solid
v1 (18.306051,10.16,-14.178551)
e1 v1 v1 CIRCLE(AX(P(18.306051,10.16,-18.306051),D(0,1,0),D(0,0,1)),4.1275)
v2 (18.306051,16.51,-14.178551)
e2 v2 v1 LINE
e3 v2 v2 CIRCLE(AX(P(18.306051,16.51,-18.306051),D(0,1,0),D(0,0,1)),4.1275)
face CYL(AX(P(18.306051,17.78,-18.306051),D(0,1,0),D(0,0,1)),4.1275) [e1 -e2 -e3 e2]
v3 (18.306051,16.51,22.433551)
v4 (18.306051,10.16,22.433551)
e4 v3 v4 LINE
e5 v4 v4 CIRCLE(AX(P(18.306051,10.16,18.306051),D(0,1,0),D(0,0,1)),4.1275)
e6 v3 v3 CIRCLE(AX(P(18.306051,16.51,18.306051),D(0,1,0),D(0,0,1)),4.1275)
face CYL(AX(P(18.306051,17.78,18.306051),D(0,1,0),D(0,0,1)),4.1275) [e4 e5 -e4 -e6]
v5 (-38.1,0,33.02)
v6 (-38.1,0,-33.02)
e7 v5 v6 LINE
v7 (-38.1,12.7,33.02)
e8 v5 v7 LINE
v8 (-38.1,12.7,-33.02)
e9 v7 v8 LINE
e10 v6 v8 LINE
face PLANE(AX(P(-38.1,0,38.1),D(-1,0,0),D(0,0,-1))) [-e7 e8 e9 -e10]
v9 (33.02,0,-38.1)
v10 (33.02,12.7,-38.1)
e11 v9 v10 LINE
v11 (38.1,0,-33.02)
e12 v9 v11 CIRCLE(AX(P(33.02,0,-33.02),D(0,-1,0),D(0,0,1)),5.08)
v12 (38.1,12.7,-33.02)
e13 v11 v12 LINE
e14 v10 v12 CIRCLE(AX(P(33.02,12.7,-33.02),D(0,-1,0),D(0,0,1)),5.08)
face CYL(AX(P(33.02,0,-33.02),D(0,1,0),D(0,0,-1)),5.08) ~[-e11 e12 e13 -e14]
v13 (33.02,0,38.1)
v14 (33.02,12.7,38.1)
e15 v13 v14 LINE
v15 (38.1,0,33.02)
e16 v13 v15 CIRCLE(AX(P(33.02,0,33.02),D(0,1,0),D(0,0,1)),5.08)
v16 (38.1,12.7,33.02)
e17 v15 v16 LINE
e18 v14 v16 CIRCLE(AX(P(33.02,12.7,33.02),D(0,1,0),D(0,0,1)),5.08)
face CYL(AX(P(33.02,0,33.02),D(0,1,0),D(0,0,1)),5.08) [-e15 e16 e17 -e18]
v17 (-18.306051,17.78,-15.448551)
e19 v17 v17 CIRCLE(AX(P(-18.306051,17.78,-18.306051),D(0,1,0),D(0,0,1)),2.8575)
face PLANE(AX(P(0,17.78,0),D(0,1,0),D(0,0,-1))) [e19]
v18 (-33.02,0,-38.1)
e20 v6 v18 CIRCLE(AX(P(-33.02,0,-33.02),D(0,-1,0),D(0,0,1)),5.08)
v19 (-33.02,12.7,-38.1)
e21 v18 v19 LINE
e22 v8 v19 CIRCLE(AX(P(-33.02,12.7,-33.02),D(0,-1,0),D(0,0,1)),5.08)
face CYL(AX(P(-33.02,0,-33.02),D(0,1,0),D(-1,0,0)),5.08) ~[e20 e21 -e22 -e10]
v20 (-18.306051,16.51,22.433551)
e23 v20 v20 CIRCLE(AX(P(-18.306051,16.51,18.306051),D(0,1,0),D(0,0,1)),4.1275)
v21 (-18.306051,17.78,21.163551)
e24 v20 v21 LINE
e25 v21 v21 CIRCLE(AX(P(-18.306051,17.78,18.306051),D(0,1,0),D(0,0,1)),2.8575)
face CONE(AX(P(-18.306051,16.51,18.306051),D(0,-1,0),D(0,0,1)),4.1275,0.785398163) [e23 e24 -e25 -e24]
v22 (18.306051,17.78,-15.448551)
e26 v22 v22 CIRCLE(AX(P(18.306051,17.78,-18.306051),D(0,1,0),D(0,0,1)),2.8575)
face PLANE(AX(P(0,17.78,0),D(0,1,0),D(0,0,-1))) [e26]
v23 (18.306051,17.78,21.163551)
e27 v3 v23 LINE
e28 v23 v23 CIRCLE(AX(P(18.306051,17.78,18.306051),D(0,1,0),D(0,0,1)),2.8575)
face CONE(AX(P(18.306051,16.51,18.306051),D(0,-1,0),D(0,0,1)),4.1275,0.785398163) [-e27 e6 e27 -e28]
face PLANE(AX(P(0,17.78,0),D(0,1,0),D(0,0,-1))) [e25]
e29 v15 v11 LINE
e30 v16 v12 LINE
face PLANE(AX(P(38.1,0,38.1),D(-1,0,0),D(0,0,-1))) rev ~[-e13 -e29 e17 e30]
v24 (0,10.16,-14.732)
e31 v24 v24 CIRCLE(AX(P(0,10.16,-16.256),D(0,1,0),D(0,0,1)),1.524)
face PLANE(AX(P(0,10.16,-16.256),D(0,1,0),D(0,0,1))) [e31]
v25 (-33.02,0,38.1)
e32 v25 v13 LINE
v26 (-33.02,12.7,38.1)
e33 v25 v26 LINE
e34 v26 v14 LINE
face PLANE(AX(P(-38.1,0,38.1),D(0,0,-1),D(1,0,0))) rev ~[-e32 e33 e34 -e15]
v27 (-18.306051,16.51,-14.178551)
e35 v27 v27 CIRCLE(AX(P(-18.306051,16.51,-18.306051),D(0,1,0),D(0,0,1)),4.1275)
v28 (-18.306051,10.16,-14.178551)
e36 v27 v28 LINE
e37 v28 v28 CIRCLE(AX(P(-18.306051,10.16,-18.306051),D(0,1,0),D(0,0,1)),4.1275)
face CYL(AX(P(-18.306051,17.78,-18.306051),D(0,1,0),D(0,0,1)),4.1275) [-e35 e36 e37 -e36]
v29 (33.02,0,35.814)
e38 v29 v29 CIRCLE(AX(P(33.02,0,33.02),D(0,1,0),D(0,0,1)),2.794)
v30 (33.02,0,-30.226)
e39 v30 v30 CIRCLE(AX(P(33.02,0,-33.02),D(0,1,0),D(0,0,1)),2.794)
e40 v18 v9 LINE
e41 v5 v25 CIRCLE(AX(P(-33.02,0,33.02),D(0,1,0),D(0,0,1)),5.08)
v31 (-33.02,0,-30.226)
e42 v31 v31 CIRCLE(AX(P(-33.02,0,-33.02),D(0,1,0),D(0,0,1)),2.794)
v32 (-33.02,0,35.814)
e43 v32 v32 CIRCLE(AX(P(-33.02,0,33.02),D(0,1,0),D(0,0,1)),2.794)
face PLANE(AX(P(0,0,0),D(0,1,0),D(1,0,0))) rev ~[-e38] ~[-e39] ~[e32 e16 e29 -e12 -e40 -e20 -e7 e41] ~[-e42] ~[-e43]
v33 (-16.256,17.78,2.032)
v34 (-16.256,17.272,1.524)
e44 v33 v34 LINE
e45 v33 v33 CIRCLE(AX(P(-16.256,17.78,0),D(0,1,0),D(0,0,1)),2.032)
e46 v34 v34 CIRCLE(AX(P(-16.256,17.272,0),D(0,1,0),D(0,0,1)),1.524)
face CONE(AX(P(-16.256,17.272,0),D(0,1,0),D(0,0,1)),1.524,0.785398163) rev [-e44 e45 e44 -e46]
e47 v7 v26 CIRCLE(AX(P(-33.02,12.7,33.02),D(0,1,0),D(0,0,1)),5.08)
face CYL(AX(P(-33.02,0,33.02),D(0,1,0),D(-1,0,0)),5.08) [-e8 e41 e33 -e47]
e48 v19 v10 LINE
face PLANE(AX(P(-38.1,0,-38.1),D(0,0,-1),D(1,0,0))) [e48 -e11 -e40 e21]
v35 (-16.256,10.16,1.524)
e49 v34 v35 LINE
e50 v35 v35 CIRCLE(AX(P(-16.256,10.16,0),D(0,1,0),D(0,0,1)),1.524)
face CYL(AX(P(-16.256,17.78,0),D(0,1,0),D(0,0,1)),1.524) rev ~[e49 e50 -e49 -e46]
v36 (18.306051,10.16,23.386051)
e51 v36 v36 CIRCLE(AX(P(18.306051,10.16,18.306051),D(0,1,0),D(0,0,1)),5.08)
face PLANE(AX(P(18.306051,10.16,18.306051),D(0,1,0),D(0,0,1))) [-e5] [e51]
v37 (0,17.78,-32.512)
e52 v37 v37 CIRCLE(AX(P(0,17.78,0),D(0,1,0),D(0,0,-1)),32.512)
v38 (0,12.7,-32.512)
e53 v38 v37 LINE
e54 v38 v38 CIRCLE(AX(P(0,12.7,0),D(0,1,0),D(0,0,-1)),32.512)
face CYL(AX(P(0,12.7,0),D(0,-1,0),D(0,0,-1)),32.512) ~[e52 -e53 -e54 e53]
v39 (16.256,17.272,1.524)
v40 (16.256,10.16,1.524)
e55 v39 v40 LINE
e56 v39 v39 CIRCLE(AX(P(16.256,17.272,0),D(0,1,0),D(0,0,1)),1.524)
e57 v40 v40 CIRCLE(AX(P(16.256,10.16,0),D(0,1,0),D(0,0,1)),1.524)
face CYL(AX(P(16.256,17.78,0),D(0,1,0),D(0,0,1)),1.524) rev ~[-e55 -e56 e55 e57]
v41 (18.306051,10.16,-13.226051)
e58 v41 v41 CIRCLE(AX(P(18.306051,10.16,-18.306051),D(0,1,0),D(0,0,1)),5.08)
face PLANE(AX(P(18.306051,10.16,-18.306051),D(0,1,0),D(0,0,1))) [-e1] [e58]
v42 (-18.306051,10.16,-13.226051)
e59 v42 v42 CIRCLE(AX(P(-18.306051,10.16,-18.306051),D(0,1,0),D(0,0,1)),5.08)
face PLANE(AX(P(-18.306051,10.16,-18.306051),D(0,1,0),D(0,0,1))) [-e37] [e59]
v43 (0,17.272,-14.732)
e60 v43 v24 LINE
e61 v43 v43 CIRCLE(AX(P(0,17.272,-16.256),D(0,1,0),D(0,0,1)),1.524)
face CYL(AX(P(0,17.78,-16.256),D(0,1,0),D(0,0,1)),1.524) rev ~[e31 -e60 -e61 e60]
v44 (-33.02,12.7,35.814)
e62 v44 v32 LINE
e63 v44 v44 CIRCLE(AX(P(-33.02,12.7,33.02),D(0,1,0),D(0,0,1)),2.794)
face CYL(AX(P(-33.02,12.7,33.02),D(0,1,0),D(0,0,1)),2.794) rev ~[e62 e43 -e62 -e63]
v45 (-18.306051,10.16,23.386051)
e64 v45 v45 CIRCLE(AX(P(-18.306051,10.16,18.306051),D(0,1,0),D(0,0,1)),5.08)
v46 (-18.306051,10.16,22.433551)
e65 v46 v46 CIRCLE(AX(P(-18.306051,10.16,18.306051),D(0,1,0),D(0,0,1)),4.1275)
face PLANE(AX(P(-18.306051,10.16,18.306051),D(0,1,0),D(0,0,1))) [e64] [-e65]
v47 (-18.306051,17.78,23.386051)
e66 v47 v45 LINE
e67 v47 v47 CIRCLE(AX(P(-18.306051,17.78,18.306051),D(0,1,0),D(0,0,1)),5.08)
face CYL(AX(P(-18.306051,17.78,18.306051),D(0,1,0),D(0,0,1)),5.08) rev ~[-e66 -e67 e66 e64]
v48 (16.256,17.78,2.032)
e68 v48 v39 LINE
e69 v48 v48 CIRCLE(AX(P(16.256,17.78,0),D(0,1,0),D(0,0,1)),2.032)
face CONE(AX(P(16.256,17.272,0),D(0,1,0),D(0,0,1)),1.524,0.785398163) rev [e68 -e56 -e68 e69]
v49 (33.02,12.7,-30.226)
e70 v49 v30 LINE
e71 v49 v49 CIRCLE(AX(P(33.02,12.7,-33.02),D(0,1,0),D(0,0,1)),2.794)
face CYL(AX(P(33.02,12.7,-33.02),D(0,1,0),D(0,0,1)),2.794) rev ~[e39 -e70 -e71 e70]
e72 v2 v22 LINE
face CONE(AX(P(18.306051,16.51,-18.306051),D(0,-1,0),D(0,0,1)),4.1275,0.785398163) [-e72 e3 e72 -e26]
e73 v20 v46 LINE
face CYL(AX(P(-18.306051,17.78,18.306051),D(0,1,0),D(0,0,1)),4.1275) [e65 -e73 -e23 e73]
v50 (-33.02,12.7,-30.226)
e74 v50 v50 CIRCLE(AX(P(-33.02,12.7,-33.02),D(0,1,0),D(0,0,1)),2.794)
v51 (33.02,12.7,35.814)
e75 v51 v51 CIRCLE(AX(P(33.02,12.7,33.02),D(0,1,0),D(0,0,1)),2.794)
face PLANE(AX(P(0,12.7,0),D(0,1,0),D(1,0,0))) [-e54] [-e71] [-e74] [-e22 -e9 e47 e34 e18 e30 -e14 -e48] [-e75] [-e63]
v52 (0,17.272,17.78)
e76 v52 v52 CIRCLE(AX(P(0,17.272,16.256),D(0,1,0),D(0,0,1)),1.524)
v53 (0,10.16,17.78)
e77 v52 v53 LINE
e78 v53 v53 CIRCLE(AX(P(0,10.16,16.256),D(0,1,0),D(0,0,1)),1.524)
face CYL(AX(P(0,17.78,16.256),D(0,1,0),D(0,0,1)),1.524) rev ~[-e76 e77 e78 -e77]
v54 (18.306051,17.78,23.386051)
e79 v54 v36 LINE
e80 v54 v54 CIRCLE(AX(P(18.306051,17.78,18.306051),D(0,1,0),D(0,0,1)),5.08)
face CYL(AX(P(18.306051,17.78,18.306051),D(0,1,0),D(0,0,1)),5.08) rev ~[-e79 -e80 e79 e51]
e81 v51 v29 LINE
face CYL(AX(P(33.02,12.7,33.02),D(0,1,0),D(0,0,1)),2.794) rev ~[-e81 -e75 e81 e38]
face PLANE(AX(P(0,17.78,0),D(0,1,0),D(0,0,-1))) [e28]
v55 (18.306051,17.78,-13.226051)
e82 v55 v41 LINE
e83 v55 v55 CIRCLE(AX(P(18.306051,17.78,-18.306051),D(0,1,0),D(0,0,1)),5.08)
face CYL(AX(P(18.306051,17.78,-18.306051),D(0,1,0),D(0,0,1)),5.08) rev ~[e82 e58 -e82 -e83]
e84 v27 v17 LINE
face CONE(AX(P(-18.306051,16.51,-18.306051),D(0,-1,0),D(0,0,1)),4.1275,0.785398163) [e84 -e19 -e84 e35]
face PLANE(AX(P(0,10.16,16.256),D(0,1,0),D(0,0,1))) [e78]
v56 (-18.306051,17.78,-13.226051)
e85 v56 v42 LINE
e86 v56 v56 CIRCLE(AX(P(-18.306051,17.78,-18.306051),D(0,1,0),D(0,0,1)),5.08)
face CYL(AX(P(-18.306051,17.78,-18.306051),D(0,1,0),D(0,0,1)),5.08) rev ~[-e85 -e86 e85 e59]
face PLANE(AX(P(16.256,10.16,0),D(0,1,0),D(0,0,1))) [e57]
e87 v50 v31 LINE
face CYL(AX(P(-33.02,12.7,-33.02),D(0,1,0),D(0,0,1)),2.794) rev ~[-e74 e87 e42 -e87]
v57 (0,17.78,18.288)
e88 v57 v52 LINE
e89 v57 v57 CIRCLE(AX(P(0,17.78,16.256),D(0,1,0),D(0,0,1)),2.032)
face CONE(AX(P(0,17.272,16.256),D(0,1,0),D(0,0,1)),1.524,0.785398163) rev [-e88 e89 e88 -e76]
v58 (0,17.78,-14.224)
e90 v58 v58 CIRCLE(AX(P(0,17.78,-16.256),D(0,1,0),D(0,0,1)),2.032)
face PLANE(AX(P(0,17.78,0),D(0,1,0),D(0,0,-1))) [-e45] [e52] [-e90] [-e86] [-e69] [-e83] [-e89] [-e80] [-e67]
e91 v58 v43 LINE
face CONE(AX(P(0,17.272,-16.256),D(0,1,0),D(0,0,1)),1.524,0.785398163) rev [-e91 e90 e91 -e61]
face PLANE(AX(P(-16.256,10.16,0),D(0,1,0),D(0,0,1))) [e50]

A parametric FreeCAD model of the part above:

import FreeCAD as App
import Part
import Sketcher
from FreeCAD import Vector
Q = App.Units.Quantity


def edges_at(feature, points):
    """Names of the edges that pass closest to the given points."""
    edges = feature.Shape.Edges
    near = lambda p: min(range(len(edges)), key=lambda i: edges[i].distToShape(Part.Vertex(*p))[0])
    return sorted({f"Edge{near(p) + 1}" for p in points})


def add_polygon(sketch, points):
    """Adds a closed chain of lines whose ends are joined by coincident constraints."""
    first, n = sketch.GeometryCount, len(points)
    for a, b in zip(points, points[1:] + points[:1]):
        sketch.addGeometry(Part.LineSegment(App.Vector(*a, 0), App.Vector(*b, 0)), False)
    for i in range(n):
        sketch.addConstraint(Sketcher.Constraint("Coincident", first + i, 2, first + (i + 1) % n, 1))

doc = App.newDocument("Part")
params = doc.addObject("Spreadsheet::Sheet", "Params")
for row, (alias, value) in enumerate([
    ("sketch1_width", "3 in"),
    ("pad1_length", "0.5 in"),
    ("sketch2_diameter", "0.22 in"),
    ("sketch3_diameter", "2.56 in"),
    ("pad2_length", "0.2 in"),
    ("fillet_radius", "0.2 in"),
    ("sketch4_diameter", "0.4 in"),
    ("sketch4_diameter2", "0.12 in"),
    ("sketch4_diameter3", "0.325 in"),
    ("pocket2_length", "0.3 in"),
    ("chamfer_size", "0.05 in"),
    ("chamfer2_size", "0.02 in"),
], start=1):
    params.set(f"A{row}", alias)
    params.set(f"B{row}", "=" + value)
    params.setAlias(f"B{row}", alias)

body = doc.addObject("PartDesign::Body", "Body")

sketch1 = doc.addObject("Sketcher::SketchObject", "Sketch")
body.addObject(sketch1)
sketch1.AttachmentSupport = (doc.XZ_Plane, [""])
sketch1.MapMode = "FlatFace"
add_polygon(sketch1, [(-38.1, -38.1), (-38.1, 38.1), (38.1, 38.1), (38.1, -38.1)])
sketch1.addConstraint([
    Sketcher.Constraint("Vertical", 0),
    Sketcher.Constraint("Horizontal", 1),
    Sketcher.Constraint("Vertical", 2),
    Sketcher.Constraint("Horizontal", 3),
    Sketcher.Constraint("Symmetric", 0, 2, 2, 2, -1, 1),
    Sketcher.Constraint("Equal", 3, 0),
    Sketcher.Constraint("DistanceX", 1, 1, 1, 2, Q("3 in")),
])
sketch1.setExpression("Constraints[10]", "Params.sketch1_width")
pad1 = doc.addObject("PartDesign::Pad", "Pad")
body.addObject(pad1)
pad1.Profile = sketch1
pad1.setExpression("Length", "Params.pad1_length")
pad1.Reversed = True

sketch2 = doc.addObject("Sketcher::SketchObject", "Sketch001")
body.addObject(sketch2)
sketch2.AttachmentSupport = (doc.XZ_Plane, [""])
sketch2.MapMode = "FlatFace"
sketch2.AttachmentOffset = App.Placement(Vector(0, 0, -0.5 * 25.4), App.Rotation())
sketch2.addGeometry([
    Part.Circle(Vector(33.02, -33.02, 0), Vector(0, 0, 1), 2.794),
    Part.Circle(Vector(33.02, 33.02, 0), Vector(0, 0, 1), 2.794),
    Part.Circle(Vector(-33.02, 33.02, 0), Vector(0, 0, 1), 2.794),
    Part.Circle(Vector(-33.02, -33.02, 0), Vector(0, 0, 1), 2.794),
], False)
sketch2.addConstraint([
    Sketcher.Constraint("Equal", 0, 1),
    Sketcher.Constraint("Equal", 1, 2),
    Sketcher.Constraint("Equal", 2, 3),
    Sketcher.Constraint("Symmetric", 0, 3, 2, 3, -1, 1),
    Sketcher.Constraint("Symmetric", 1, 3, 3, 3, -1, 1),
    Sketcher.Constraint("Symmetric", 1, 3, 2, 3, -2),
    Sketcher.Constraint("Diameter", 0, Q("0.22 in")),
    Sketcher.Constraint("DistanceX", -1, 1, 0, 3, Q("1.3 in")),
    Sketcher.Constraint("DistanceY", 0, 3, -1, 1, Q("1.3 in")),
])
sketch2.setExpression("Constraints[6]", "Params.sketch2_diameter")
pocket1 = doc.addObject("PartDesign::Pocket", "Pocket")
body.addObject(pocket1)
pocket1.Profile = sketch2
pocket1.Type = "ThroughAll"
pocket1.Reversed = True

sketch3 = doc.addObject("Sketcher::SketchObject", "Sketch002")
body.addObject(sketch3)
sketch3.AttachmentSupport = (doc.XZ_Plane, [""])
sketch3.MapMode = "FlatFace"
sketch3.AttachmentOffset = App.Placement(Vector(0, 0, -0.5 * 25.4), App.Rotation())
sketch3.addGeometry(Part.Circle(Vector(0, 0, 0), Vector(0, 0, 1), 32.512), False)
sketch3.addConstraint([
    Sketcher.Constraint("Coincident", 0, 3, -1, 1),
    Sketcher.Constraint("Diameter", 0, Q("2.56 in")),
])
sketch3.setExpression("Constraints[1]", "Params.sketch3_diameter")
pad2 = doc.addObject("PartDesign::Pad", "Pad001")
body.addObject(pad2)
pad2.Profile = sketch3
pad2.setExpression("Length", "Params.pad2_length")
pad2.Reversed = True
doc.recompute()

fillet = doc.addObject("PartDesign::Fillet", "Fillet")
body.addObject(fillet)
fillet.Base = (pad2, edges_at(pad2, [
    (38.1, 6.35, 38.1),
    (-38.1, 6.35, 38.1),
    (-38.1, 6.35, -38.1),
    (38.1, 6.35, -38.1),
]))
fillet.setExpression("Radius", "Params.fillet_radius")

sketch4 = doc.addObject("Sketcher::SketchObject", "Sketch003")
body.addObject(sketch4)
sketch4.AttachmentSupport = (doc.XZ_Plane, [""])
sketch4.MapMode = "FlatFace"
sketch4.AttachmentOffset = App.Placement(Vector(0, 0, -0.7 * 25.4), App.Rotation())
sketch4.addGeometry([
    Part.Circle(Vector(18.306051, -18.306051, 0), Vector(0, 0, 1), 5.08),
    Part.Circle(Vector(18.306051, -18.306051, 0), Vector(0, 0, 1), 4.1275),
    Part.Circle(Vector(18.306051, 18.306051, 0), Vector(0, 0, 1), 5.08),
    Part.Circle(Vector(18.306051, 18.306051, 0), Vector(0, 0, 1), 4.1275),
    Part.Circle(Vector(-18.306051, 18.306051, 0), Vector(0, 0, 1), 5.08),
    Part.Circle(Vector(-18.306051, 18.306051, 0), Vector(0, 0, 1), 4.1275),
    Part.Circle(Vector(-18.306051, -18.306051, 0), Vector(0, 0, 1), 5.08),
    Part.Circle(Vector(-18.306051, -18.306051, 0), Vector(0, 0, 1), 4.1275),
    Part.Circle(Vector(0, -16.256, 0), Vector(0, 0, 1), 1.524),
    Part.Circle(Vector(16.256, 0, 0), Vector(0, 0, 1), 1.524),
    Part.Circle(Vector(0, 16.256, 0), Vector(0, 0, 1), 1.524),
    Part.Circle(Vector(-16.256, 0, 0), Vector(0, 0, 1), 1.524),
], False)
sketch4.addConstraint([
    Sketcher.Constraint("Coincident", 1, 3, 0, 3),
    Sketcher.Constraint("Coincident", 3, 3, 2, 3),
    Sketcher.Constraint("Coincident", 5, 3, 4, 3),
    Sketcher.Constraint("Coincident", 7, 3, 6, 3),
    Sketcher.Constraint("Equal", 0, 2),
    Sketcher.Constraint("Equal", 1, 3),
    Sketcher.Constraint("Equal", 2, 4),
    Sketcher.Constraint("Equal", 3, 5),
    Sketcher.Constraint("Equal", 4, 6),
    Sketcher.Constraint("Equal", 5, 7),
    Sketcher.Constraint("Equal", 8, 9),
    Sketcher.Constraint("Equal", 9, 10),
    Sketcher.Constraint("Equal", 10, 11),
    Sketcher.Constraint("Symmetric", 0, 3, 4, 3, -1, 1),
    Sketcher.Constraint("Symmetric", 2, 3, 6, 3, -1, 1),
    Sketcher.Constraint("Symmetric", 8, 3, 10, 3, -1, 1),
    Sketcher.Constraint("Symmetric", 9, 3, 11, 3, -1, 1),
    Sketcher.Constraint("Symmetric", 2, 3, 4, 3, -2),
    Sketcher.Constraint("PointOnObject", 8, 3, -2),
    Sketcher.Constraint("PointOnObject", 9, 3, -1),
    Sketcher.Constraint("Diameter", 0, Q("0.4 in")),
    Sketcher.Constraint("Diameter", 8, Q("0.12 in")),
    Sketcher.Constraint("Diameter", 1, Q("0.325 in")),
    Sketcher.Constraint("DistanceY", 8, 3, -1, 1, Q("0.64 in")),
    Sketcher.Constraint("DistanceX", -1, 1, 9, 3, Q("0.64 in")),
    Sketcher.Constraint("DistanceX", -1, 1, 0, 3, 18.306051),
    Sketcher.Constraint("DistanceY", 0, 3, -1, 1, 18.306051),
])
sketch4.setExpression("Constraints[20]", "Params.sketch4_diameter")
sketch4.setExpression("Constraints[21]", "Params.sketch4_diameter2")
sketch4.setExpression("Constraints[22]", "Params.sketch4_diameter3")
pocket2 = doc.addObject("PartDesign::Pocket", "Pocket001")
body.addObject(pocket2)
pocket2.Profile = sketch4
pocket2.setExpression("Length", "Params.pocket2_length")
pocket2.Reversed = True
doc.recompute()

chamfer = doc.addObject("PartDesign::Chamfer", "Chamfer")
body.addObject(chamfer)
chamfer.Base = (pocket2, edges_at(pocket2, [
    (18.306, 17.78, 14.179),
    (-18.306, 17.78, 14.179),
    (-18.306, 17.78, -22.434),
    (18.306, 17.78, -22.434),
]))
chamfer.setExpression("Size", "Params.chamfer_size")
doc.recompute()

chamfer2 = doc.addObject("PartDesign::Chamfer", "Chamfer001")
body.addObject(chamfer2)
chamfer2.Base = (chamfer, edges_at(chamfer, [
    (0, 17.78, -17.78),
    (16.256, 17.78, -1.524),
    (0, 17.78, 14.732),
    (-16.256, 17.78, -1.524),
]))
chamfer2.setExpression("Size", "Params.chamfer2_size")

doc.recompute()
